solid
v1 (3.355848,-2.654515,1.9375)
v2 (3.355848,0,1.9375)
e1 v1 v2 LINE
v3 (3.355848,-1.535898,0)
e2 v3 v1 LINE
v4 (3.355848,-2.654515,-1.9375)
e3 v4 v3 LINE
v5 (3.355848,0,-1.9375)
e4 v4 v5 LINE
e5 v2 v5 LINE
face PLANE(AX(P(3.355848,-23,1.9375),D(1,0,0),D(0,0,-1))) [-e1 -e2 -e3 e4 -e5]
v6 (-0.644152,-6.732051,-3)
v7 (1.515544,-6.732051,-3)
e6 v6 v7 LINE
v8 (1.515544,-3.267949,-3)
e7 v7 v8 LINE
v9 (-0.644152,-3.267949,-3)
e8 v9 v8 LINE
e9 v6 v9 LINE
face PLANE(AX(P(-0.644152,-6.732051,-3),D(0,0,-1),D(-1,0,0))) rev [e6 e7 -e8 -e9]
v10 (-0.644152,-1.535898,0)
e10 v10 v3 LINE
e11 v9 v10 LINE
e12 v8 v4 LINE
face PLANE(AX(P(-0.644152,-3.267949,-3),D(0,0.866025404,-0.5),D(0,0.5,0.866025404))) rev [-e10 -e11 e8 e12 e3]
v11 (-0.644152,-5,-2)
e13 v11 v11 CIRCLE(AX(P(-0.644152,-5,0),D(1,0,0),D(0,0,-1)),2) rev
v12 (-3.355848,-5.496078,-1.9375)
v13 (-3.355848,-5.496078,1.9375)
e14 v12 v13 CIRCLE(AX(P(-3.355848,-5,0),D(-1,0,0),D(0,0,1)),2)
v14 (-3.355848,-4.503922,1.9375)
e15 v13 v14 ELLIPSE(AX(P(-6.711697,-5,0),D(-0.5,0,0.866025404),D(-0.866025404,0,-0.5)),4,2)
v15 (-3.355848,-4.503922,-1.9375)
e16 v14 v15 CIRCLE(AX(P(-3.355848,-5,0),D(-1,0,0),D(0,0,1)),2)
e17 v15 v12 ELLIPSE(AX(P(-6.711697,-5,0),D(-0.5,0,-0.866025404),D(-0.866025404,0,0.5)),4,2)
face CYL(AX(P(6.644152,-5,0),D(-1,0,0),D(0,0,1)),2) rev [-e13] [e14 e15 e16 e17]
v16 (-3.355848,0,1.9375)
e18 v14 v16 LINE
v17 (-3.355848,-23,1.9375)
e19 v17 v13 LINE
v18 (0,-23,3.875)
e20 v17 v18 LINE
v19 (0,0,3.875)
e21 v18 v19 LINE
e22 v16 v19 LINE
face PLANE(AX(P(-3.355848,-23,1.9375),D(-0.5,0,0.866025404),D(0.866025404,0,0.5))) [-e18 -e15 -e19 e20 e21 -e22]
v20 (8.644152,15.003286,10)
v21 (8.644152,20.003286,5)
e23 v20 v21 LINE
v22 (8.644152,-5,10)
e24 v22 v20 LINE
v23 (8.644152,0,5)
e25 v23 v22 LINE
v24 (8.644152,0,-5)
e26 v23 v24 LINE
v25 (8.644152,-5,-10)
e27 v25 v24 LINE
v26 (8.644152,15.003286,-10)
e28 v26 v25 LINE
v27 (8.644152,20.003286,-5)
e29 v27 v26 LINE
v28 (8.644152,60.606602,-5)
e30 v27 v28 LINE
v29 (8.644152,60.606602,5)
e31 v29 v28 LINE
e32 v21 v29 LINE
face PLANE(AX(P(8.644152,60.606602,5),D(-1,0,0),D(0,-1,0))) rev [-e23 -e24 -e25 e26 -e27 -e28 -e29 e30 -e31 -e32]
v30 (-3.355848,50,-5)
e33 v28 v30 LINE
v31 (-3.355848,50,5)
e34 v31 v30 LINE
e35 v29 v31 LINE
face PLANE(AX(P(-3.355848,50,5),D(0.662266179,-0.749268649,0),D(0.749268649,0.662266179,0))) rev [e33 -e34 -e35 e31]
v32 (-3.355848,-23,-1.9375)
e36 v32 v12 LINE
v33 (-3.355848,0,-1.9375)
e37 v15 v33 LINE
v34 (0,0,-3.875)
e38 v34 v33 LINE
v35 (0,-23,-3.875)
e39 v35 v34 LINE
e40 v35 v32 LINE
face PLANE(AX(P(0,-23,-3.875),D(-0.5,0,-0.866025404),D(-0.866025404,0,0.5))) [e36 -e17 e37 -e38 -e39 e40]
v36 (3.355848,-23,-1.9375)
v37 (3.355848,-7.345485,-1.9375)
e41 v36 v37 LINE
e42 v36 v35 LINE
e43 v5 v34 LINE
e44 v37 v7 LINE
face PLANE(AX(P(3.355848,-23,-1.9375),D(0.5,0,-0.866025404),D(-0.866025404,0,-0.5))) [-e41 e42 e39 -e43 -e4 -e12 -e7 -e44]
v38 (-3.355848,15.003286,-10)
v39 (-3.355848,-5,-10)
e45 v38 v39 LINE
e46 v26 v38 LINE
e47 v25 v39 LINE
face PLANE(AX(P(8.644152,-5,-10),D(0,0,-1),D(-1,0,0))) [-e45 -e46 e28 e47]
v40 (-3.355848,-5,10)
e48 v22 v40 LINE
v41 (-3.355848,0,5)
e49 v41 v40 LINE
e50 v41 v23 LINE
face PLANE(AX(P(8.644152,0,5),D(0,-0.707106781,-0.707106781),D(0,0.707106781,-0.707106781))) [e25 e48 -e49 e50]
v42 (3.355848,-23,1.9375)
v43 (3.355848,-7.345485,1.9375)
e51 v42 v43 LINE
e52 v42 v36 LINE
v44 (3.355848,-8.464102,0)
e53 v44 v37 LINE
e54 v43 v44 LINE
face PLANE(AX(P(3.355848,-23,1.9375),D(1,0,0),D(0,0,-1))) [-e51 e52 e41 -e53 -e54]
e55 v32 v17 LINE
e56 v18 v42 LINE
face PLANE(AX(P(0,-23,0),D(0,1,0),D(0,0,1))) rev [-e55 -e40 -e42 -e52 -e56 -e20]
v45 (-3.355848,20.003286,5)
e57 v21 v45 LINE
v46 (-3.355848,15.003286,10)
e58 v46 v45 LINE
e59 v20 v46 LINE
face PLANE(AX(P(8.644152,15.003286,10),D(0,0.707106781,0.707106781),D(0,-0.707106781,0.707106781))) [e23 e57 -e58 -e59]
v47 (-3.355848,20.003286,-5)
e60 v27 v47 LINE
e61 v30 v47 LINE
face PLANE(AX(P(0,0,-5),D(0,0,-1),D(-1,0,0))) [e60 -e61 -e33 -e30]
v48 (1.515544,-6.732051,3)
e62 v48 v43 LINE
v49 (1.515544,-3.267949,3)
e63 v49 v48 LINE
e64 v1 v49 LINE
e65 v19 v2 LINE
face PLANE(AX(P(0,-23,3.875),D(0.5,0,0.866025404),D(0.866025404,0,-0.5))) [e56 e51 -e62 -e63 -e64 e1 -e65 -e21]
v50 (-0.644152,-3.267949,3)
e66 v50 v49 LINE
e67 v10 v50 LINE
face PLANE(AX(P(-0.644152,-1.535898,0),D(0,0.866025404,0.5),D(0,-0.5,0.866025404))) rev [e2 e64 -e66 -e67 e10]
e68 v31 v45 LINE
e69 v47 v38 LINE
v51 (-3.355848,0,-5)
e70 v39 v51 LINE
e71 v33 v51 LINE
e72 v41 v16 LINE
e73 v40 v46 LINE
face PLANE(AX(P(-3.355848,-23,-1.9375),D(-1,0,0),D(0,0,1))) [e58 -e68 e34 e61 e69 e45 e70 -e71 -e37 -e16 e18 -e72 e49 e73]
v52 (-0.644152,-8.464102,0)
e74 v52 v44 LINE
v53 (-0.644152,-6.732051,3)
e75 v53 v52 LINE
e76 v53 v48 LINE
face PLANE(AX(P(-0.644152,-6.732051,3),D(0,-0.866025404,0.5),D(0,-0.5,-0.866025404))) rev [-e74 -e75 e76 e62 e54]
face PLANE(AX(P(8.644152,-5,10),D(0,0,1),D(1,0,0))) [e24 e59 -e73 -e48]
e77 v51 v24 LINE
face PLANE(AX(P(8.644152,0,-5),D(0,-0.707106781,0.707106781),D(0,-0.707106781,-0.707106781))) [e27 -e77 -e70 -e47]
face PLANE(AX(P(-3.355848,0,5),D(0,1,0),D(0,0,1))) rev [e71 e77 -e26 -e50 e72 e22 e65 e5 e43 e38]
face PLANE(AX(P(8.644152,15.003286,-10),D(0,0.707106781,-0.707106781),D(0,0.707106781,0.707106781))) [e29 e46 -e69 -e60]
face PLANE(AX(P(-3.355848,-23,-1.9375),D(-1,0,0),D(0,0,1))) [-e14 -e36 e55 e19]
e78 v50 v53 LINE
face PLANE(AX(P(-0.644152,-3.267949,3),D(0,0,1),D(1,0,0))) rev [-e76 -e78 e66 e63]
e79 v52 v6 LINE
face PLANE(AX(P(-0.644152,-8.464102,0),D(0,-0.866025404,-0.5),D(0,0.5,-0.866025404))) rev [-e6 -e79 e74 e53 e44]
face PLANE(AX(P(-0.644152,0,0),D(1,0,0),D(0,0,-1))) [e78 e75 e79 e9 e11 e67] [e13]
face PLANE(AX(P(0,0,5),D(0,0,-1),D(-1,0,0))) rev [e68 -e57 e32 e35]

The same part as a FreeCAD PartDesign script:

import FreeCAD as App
import Part
import Sketcher
from FreeCAD import Vector
Q = App.Units.Quantity


def add_polygon(sketch, points):
    """Adds a closed chain of lines whose ends are joined by coincident constraints."""
    first, n = sketch.GeometryCount, len(points)
    for a, b in zip(points, points[1:] + points[:1]):
        sketch.addGeometry(Part.LineSegment(App.Vector(*a, 0), App.Vector(*b, 0)), False)
    for i in range(n):
        sketch.addConstraint(Sketcher.Constraint("Coincident", first + i, 2, first + (i + 1) % n, 1))

doc = App.newDocument("Part")
body = doc.addObject("PartDesign::Body", "Body")

# Sketch on XZ plane
sketch1 = doc.addObject("Sketcher::SketchObject", "Sketch")
body.addObject(sketch1)
sketch1.AttachmentSupport = (doc.XZ_Plane, [""])
sketch1.MapMode = "FlatFace"
add_polygon(sketch1, [(0, 3.9), (3.4, 1.9), (3.4, -1.9), (0, -3.9), (-3.4, -1.9), (-3.4, 1.9)])  # lines 0-5
sketch1.addConstraint(Sketcher.Constraint("Vertical", 1))
sketch1.addConstraint(Sketcher.Constraint("Vertical", 4))
sketch1.addConstraint(Sketcher.Constraint("Symmetric", 0, 2, 3, 2, -1, 1))
sketch1.addConstraint(Sketcher.Constraint("Symmetric", 2, 2, 5, 2, -1, 1))
sketch1.addConstraint(Sketcher.Constraint("PointOnObject", 2, 2, -2))
sketch1.addConstraint(Sketcher.Constraint("Parallel", 2, 5))
sketch1.addConstraint(Sketcher.Constraint("Horizontal", 1, 2, 3, 2))
sketch1.addConstraint(Sketcher.Constraint("Angle", 0, Q("-30 deg")))
sketch1.addConstraint(Sketcher.Constraint("DistanceY", 1, 2, 1, 1, Q("3.875 mm")))
sketch1.addConstraint(Sketcher.Constraint("DistanceY", 2, 2, 5, 2, Q("7.75 mm")))
pad1 = doc.addObject("PartDesign::Pad", "Pad")
body.addObject(pad1)
pad1.Profile = sketch1
pad1.Length = 23

# Sketch on YZ plane
sketch2 = doc.addObject("Sketcher::SketchObject", "Sketch001")
body.addObject(sketch2)
sketch2.AttachmentSupport = (doc.YZ_Plane, [""])
sketch2.MapMode = "FlatFace"
sketch2.AttachmentOffset = App.Placement(Vector(0, 0, -3.355848), App.Rotation())
sketch2.addGeometry(Part.Circle(Vector(-5, 0, 0), Vector(0, 0, 1), 2), False)
sketch2.addConstraint(Sketcher.Constraint("PointOnObject", 0, 3, -1))
sketch2.addConstraint(Sketcher.Constraint("Diameter", 0, Q("4 mm")))
sketch2.addConstraint(Sketcher.Constraint("DistanceX", 0, 3, -1, 1, Q("5 mm")))
pocket1 = doc.addObject("PartDesign::Pocket", "Pocket")
body.addObject(pocket1)
pocket1.Profile = sketch2
pocket1.Length = 10
pocket1.Reversed = True

# Sketch on YZ plane
sketch3 = doc.addObject("Sketcher::SketchObject", "Sketch002")
body.addObject(sketch3)
sketch3.AttachmentSupport = (doc.YZ_Plane, [""])
sketch3.MapMode = "FlatFace"
sketch3.AttachmentOffset = App.Placement(Vector(0, 0, 3.355848), App.Rotation())
add_polygon(sketch3, [(-8.5, 0), (-6.7, -3), (-3.3, -3), (-1.5, 0), (-3.3, 3), (-6.7, 3)])  # lines 0-5
sketch3.addConstraint(Sketcher.Constraint("Horizontal", 1))
sketch3.addConstraint(Sketcher.Constraint("Horizontal", 4))
sketch3.addConstraint(Sketcher.Constraint("Symmetric", 1, 2, 3, 2, -1))
sketch3.addConstraint(Sketcher.Constraint("PointOnObject", 2, 2, -1))
sketch3.addConstraint(Sketcher.Constraint("PointOnObject", 5, 2, -1))
sketch3.addConstraint(Sketcher.Constraint("Parallel", 0, 3))
sketch3.addConstraint(Sketcher.Constraint("Parallel", 2, 5))
sketch3.addConstraint(Sketcher.Constraint("Angle", 0, Q("-60 deg")))
sketch3.addConstraint(Sketcher.Constraint("DistanceY", 0, 2, -1, 1, Q("3 mm")))
sketch3.addConstraint(Sketcher.Constraint("DistanceX", 1, 1, 1, 2, Q("3.464102 mm")))
sketch3.addConstraint(Sketcher.Constraint("DistanceX", 2, 2, -1, 1, Q("1.535898 mm")))
pocket2 = doc.addObject("PartDesign::Pocket", "Pocket001")
body.addObject(pocket2)
pocket2.Profile = sketch3
pocket2.Length = 4

# Sketch on XY plane
sketch4 = doc.addObject("Sketcher::SketchObject", "Sketch003")
body.addObject(sketch4)
sketch4.AttachmentSupport = (doc.XY_Plane, [""])
sketch4.MapMode = "FlatFace"
add_polygon(sketch4, [(-3, 50), (-3, 0), (9, 0), (9, 61)])  # lines 0-3
sketch4.addConstraint(Sketcher.Constraint("Vertical", 0))
sketch4.addConstraint(Sketcher.Constraint("Horizontal", 1))
sketch4.addConstraint(Sketcher.Constraint("Vertical", 2))
sketch4.addConstraint(Sketcher.Constraint("PointOnObject", 0, 2, -1))
sketch4.addConstraint(Sketcher.Constraint("DistanceX", 1, 1, 1, 2, Q("12 mm")))
sketch4.addConstraint(Sketcher.Constraint("DistanceY", 0, 2, 0, 1, Q("50 mm")))
sketch4.addConstraint(Sketcher.Constraint("DistanceY", 2, 1, 2, 2, Q("60.606602 mm")))
sketch4.addConstraint(Sketcher.Constraint("DistanceX", 0, 2, -1, 1, Q("3.355848 mm")))
pad2 = doc.addObject("PartDesign::Pad", "Pad001")
body.addObject(pad2)
pad2.Profile = sketch4
pad2.Length = 10
pad2.Midplane = True

# Sketch on YZ plane
sketch5 = doc.addObject("Sketcher::SketchObject", "Sketch004")
body.addObject(sketch5)
sketch5.AttachmentSupport = (doc.YZ_Plane, [""])
sketch5.MapMode = "FlatFace"
sketch5.AttachmentOffset = App.Placement(Vector(0, 0, -3.355848), App.Rotation())
add_polygon(sketch5, [(0, 5), (-5, 10), (15, 10), (20, 5)])  # lines 0-3
add_polygon(sketch5, [(20, -5), (15, -10), (-5, -10), (0, -5)])  # lines 4-7
sketch5.addConstraint(Sketcher.Constraint("Horizontal", 1))
sketch5.addConstraint(Sketcher.Constraint("Horizontal", 3))
sketch5.addConstraint(Sketcher.Constraint("Horizontal", 5))
sketch5.addConstraint(Sketcher.Constraint("Horizontal", 7))
sketch5.addConstraint(Sketcher.Constraint("Symmetric", 3, 2, 6, 2, -1, 1))
sketch5.addConstraint(Sketcher.Constraint("Symmetric", 1, 2, 4, 2, -1))
sketch5.addConstraint(Sketcher.Constraint("PointOnObject", 3, 2, -2))
sketch5.addConstraint(Sketcher.Constraint("Parallel", 0, 2))
sketch5.addConstraint(Sketcher.Constraint("Perpendicular", 2, 4))
sketch5.addConstraint(Sketcher.Constraint("Parallel", 4, 6))
sketch5.addConstraint(Sketcher.Constraint("Vertical", 0, 2, 5, 2))
sketch5.addConstraint(Sketcher.Constraint("DistanceX", 0, 2, -1, 1, Q("5 mm")))
sketch5.addConstraint(Sketcher.Constraint("DistanceY", -1, 1, 0, 2, Q("10 mm")))
sketch5.addConstraint(Sketcher.Constraint("DistanceX", 1, 1, 1, 2, Q("20.003286 mm")))
pad3 = doc.addObject("PartDesign::Pad", "Pad002")
body.addObject(pad3)
pad3.Profile = sketch5
pad3.Length = 12

doc.recompute()
